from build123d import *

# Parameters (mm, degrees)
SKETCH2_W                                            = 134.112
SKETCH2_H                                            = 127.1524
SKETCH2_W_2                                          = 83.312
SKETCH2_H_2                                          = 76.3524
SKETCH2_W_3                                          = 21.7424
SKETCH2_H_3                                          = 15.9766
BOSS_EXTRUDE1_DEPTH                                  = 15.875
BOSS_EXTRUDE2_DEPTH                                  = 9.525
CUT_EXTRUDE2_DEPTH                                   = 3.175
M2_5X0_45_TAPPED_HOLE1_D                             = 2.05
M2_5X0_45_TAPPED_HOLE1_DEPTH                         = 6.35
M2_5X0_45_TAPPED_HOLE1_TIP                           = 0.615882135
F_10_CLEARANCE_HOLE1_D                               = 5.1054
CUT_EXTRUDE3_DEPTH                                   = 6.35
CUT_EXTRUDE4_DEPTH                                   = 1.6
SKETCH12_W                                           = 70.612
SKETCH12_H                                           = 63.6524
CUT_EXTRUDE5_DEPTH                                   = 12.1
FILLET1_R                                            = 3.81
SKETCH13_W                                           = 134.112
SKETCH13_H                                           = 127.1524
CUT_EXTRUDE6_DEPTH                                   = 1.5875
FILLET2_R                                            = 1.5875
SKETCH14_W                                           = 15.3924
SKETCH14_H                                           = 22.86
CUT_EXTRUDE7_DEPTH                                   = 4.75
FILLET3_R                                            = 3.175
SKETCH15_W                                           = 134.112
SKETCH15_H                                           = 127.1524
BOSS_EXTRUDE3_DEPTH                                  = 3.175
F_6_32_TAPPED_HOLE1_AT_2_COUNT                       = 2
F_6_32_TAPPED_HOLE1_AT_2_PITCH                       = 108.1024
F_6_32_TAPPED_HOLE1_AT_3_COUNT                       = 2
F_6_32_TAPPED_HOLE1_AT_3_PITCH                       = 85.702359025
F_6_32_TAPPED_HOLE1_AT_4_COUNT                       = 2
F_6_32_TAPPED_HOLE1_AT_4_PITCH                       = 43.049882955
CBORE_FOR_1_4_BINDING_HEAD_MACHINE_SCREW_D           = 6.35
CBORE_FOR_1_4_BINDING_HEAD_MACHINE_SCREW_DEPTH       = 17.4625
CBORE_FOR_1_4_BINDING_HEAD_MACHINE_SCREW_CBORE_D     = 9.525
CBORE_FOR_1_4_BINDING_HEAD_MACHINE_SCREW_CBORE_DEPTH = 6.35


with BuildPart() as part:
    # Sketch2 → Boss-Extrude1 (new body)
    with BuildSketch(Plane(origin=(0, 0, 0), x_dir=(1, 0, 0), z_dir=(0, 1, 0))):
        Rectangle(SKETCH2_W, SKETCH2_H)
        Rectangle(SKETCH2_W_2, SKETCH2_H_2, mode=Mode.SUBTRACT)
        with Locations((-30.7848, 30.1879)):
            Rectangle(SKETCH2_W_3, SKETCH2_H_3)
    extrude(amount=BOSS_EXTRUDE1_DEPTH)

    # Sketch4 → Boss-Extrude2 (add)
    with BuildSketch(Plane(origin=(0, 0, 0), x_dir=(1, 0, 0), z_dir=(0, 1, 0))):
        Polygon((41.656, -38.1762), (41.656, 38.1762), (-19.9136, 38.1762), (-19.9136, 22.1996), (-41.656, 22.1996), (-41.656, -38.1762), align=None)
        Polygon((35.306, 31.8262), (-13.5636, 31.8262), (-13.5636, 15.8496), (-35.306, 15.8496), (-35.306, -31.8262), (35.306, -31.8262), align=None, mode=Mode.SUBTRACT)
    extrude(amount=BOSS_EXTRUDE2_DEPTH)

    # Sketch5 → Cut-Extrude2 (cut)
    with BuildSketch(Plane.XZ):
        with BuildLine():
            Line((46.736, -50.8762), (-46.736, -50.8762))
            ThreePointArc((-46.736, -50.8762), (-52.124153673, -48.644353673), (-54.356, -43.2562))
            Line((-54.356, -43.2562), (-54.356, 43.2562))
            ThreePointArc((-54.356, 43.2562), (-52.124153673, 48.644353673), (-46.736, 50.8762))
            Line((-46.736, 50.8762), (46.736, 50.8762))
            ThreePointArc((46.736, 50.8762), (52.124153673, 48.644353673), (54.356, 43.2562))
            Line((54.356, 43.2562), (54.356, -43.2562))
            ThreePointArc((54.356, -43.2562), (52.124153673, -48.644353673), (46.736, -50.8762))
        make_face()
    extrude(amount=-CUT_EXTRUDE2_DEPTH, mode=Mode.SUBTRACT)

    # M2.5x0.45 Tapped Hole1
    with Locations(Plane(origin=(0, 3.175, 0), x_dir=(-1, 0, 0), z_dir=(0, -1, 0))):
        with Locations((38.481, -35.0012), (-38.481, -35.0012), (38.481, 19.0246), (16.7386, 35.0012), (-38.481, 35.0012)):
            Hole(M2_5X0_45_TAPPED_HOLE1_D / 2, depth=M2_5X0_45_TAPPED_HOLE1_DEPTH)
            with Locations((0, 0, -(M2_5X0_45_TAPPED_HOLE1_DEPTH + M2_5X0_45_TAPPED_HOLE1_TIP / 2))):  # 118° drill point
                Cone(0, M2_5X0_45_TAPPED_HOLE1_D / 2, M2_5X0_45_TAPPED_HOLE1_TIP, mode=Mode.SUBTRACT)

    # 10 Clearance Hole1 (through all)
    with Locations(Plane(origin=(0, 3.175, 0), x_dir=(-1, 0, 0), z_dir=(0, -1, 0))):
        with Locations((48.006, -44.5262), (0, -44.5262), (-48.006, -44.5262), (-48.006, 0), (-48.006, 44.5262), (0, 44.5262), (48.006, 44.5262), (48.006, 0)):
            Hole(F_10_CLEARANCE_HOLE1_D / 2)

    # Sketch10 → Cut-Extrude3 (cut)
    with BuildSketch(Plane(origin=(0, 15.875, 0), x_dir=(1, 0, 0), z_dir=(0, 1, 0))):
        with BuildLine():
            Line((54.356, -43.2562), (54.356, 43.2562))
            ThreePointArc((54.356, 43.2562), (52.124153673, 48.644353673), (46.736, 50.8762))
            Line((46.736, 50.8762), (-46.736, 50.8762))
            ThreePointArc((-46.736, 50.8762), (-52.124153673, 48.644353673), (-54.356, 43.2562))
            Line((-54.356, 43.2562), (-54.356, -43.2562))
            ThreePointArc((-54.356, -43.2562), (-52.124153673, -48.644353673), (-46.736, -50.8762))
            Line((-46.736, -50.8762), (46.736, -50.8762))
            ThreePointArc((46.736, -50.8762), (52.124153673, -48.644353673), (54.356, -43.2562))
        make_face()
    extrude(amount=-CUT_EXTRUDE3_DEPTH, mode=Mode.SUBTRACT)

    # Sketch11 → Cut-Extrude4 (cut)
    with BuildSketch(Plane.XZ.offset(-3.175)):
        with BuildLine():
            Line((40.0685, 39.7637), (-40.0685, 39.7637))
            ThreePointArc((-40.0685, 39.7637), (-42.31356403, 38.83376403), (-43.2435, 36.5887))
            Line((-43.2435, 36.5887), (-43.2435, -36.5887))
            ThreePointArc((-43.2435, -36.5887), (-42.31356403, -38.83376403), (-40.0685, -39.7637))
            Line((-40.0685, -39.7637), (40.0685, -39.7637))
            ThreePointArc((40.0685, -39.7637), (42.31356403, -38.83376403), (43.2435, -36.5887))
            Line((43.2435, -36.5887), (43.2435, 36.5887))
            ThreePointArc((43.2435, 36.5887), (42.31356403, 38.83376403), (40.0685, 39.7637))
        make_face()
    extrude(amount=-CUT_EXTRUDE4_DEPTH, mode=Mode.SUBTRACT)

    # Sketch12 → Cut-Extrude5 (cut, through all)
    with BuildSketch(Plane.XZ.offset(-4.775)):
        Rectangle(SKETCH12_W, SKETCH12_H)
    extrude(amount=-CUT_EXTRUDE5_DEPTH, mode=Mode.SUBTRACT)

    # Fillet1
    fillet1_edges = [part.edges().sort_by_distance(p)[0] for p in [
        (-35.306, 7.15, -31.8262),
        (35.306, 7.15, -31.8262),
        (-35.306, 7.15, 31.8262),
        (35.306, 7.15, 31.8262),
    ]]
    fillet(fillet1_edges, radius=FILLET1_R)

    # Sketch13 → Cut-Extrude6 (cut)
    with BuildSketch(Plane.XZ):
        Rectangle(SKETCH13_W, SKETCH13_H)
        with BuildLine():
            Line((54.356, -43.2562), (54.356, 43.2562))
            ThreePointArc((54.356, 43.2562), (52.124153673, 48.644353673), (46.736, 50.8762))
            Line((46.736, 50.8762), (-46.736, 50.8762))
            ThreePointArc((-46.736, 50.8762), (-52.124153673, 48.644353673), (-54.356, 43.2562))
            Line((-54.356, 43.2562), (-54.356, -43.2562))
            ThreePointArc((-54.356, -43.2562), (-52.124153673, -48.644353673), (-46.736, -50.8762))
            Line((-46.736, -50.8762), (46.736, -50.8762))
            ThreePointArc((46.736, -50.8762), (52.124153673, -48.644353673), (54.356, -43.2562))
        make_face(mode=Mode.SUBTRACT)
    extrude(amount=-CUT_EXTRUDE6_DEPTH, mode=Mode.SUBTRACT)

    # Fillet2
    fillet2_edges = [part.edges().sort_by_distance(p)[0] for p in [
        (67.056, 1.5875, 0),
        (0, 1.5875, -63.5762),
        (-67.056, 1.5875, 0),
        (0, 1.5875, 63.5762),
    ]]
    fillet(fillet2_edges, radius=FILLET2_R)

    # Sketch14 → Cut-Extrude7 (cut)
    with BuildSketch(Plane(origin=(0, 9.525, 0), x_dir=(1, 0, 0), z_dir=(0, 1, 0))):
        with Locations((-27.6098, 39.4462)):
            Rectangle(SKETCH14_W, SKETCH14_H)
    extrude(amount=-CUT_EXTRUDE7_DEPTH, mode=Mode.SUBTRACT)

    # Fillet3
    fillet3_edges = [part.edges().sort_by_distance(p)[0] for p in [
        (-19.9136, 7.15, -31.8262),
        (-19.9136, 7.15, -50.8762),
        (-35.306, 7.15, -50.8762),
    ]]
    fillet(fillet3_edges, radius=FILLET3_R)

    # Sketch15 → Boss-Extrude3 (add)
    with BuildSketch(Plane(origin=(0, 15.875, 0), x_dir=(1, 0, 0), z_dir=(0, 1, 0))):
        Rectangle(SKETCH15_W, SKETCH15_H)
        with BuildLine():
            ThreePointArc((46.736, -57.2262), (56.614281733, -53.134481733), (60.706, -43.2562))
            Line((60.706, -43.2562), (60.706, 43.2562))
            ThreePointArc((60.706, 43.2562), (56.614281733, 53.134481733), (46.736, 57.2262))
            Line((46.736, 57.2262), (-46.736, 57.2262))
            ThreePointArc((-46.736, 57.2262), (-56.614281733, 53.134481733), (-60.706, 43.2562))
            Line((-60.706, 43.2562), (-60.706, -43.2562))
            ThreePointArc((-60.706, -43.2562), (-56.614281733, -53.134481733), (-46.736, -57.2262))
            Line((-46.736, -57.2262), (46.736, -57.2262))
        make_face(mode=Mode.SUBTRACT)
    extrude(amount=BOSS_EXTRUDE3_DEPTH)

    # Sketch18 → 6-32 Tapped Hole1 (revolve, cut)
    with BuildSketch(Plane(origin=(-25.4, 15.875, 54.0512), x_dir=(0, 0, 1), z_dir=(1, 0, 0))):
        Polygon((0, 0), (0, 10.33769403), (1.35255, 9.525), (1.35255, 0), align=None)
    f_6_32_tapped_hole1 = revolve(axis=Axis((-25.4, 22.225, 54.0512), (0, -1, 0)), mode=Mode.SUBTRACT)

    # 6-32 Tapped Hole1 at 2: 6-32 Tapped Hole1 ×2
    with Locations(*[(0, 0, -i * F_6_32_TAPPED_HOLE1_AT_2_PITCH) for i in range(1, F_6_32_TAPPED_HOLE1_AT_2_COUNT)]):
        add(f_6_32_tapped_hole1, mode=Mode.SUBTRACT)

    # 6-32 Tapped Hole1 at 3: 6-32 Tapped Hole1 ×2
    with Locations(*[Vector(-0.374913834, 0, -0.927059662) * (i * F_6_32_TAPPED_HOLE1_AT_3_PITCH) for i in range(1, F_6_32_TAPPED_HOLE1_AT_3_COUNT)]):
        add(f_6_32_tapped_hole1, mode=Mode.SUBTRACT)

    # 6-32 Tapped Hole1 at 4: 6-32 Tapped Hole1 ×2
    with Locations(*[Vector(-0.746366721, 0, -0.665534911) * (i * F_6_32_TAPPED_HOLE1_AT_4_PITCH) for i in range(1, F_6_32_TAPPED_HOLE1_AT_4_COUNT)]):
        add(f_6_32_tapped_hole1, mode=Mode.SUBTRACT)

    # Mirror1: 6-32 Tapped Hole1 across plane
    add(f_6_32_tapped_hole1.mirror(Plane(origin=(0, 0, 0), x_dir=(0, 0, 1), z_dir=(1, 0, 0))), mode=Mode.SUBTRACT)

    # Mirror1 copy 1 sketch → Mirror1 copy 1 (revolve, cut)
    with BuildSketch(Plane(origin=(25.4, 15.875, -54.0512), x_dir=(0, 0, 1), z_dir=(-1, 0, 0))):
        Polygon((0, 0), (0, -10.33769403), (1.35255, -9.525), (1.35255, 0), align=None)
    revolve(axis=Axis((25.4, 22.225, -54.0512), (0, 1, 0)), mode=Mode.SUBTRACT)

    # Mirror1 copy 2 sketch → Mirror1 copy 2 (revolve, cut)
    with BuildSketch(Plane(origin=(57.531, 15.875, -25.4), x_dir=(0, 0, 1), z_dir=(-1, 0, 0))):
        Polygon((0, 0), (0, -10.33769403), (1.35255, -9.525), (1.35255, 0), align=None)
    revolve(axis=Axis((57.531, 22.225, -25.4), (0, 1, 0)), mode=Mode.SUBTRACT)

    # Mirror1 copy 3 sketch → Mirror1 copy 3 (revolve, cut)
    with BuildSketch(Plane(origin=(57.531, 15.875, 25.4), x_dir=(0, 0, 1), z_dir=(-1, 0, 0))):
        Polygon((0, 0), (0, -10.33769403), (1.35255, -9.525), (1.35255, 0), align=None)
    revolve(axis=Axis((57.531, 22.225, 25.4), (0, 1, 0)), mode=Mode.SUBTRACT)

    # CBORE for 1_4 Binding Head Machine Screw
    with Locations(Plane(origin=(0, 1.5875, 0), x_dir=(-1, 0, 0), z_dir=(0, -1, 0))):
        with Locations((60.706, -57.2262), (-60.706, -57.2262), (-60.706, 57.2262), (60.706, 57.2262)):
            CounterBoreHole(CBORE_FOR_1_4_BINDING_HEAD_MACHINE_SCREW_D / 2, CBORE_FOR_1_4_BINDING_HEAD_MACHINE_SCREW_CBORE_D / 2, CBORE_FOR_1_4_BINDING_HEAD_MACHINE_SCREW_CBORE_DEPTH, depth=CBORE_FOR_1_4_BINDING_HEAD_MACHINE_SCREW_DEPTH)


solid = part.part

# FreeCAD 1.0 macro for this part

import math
import FreeCAD as App
import Part
import Sketcher
from FreeCAD import Vector
Q = App.Units.Quantity


def edges_at(feature, points):
    """Names of the edges that pass closest to the given points."""
    edges = feature.Shape.Edges
    near = lambda p: min(range(len(edges)), key=lambda i: edges[i].distToShape(Part.Vertex(*p))[0])
    return sorted({f"Edge{near(p) + 1}" for p in points})


def add_polygon(sketch, points):
    """Adds a closed chain of lines whose ends are joined by coincident constraints."""
    first, n = sketch.GeometryCount, len(points)
    for a, b in zip(points, points[1:] + points[:1]):
        sketch.addGeometry(Part.LineSegment(App.Vector(*a, 0), App.Vector(*b, 0)), False)
    for i in range(n):
        sketch.addConstraint(Sketcher.Constraint("Coincident", first + i, 2, first + (i + 1) % n, 1))

doc = App.newDocument("Part")
body = doc.addObject("PartDesign::Body", "Body")

sketch1 = doc.addObject("Sketcher::SketchObject", "Sketch")
body.addObject(sketch1)
sketch1.AttachmentSupport = (doc.XZ_Plane, [""])
sketch1.MapMode = "FlatFace"
add_polygon(sketch1, [(-67, -64), (-67, 64), (67, 64), (67, -64)])
add_polygon(sketch1, [(42, 38), (-42, 38), (-42, -22), (-20, -22), (-20, -38), (42, -38)])
sketch1.addConstraint(Sketcher.Constraint("Vertical", 0))
sketch1.addConstraint(Sketcher.Constraint("Horizontal", 1))
sketch1.addConstraint(Sketcher.Constraint("Vertical", 2))
sketch1.addConstraint(Sketcher.Constraint("Horizontal", 3))
sketch1.addConstraint(Sketcher.Constraint("Horizontal", 4))
sketch1.addConstraint(Sketcher.Constraint("Vertical", 5))
sketch1.addConstraint(Sketcher.Constraint("Horizontal", 6))
sketch1.addConstraint(Sketcher.Constraint("Vertical", 7))
sketch1.addConstraint(Sketcher.Constraint("Horizontal", 8))
sketch1.addConstraint(Sketcher.Constraint("Vertical", 9))
sketch1.addConstraint(Sketcher.Constraint("Symmetric", 0, 2, 2, 2, -1, 1))
sketch1.addConstraint(Sketcher.Constraint("Symmetric", 4, 2, 8, 2, -1, 1))
sketch1.addConstraint(Sketcher.Constraint("DistanceX", 0, 2, 4, 2, Q("1 in")))
sketch1.addConstraint(Sketcher.Constraint("DistanceY", 4, 2, 0, 2, Q("1 in")))
sketch1.addConstraint(Sketcher.Constraint("DistanceX", 1, 1, 1, 2, Q("5.28 in")))
sketch1.addConstraint(Sketcher.Constraint("DistanceX", 6, 1, 6, 2, Q("0.856 in")))
sketch1.addConstraint(Sketcher.Constraint("DistanceY", 0, 1, 0, 2, Q("5.006 in")))
sketch1.addConstraint(Sketcher.Constraint("DistanceY", 5, 2, 5, 1, Q("2.377 in")))
pad1 = doc.addObject("PartDesign::Pad", "Pad")
body.addObject(pad1)
pad1.Profile = sketch1
pad1.Length = Q("0.625 in")
pad1.Reversed = True

sketch2 = doc.addObject("Sketcher::SketchObject", "Sketch001")
body.addObject(sketch2)
sketch2.AttachmentSupport = (doc.XZ_Plane, [""])
sketch2.MapMode = "FlatFace"
add_polygon(sketch2, [(42, 38), (42, -38), (-20, -38), (-20, -22), (-42, -22), (-42, 38)])
add_polygon(sketch2, [(-14, -32), (35, -32), (35, 32), (-35, 32), (-35, -16), (-14, -16)])
sketch2.addConstraint(Sketcher.Constraint("Vertical", 0))
sketch2.addConstraint(Sketcher.Constraint("Horizontal", 1))
sketch2.addConstraint(Sketcher.Constraint("Vertical", 2))
sketch2.addConstraint(Sketcher.Constraint("Horizontal", 3))
sketch2.addConstraint(Sketcher.Constraint("Vertical", 4))
sketch2.addConstraint(Sketcher.Constraint("Horizontal", 5))
sketch2.addConstraint(Sketcher.Constraint("Horizontal", 6))
sketch2.addConstraint(Sketcher.Constraint("Vertical", 7))
sketch2.addConstraint(Sketcher.Constraint("Horizontal", 8))
sketch2.addConstraint(Sketcher.Constraint("Vertical", 9))
sketch2.addConstraint(Sketcher.Constraint("Horizontal", 10))
sketch2.addConstraint(Sketcher.Constraint("Vertical", 11))
sketch2.addConstraint(Sketcher.Constraint("Symmetric", 0, 2, 4, 2, -1, 1))
sketch2.addConstraint(Sketcher.Constraint("Symmetric", 6, 2, 8, 2, -1, 1))
sketch2.addConstraint(Sketcher.Constraint("Equal", 3, 10))
sketch2.addConstraint(Sketcher.Constraint("Equal", 2, 11))
sketch2.addConstraint(Sketcher.Constraint("DistanceX", 5, 1, 5, 2, Q("3.28 in")))
sketch2.addConstraint(Sketcher.Constraint("DistanceX", 8, 2, 8, 1, Q("2.78 in")))
sketch2.addConstraint(Sketcher.Constraint("DistanceX", 1, 2, 1, 1, Q("2.424 in")))
sketch2.addConstraint(Sketcher.Constraint("DistanceY", 0, 2, 0, 1, Q("3.006 in")))
sketch2.addConstraint(Sketcher.Constraint("DistanceY", 2, 1, 2, 2, Q("0.629 in")))
sketch2.addConstraint(Sketcher.Constraint("DistanceY", 7, 1, 7, 2, Q("2.506 in")))
pad2 = doc.addObject("PartDesign::Pad", "Pad001")
body.addObject(pad2)
pad2.Profile = sketch2
pad2.Length = Q("0.375 in")
pad2.Reversed = True

sketch3 = doc.addObject("Sketcher::SketchObject", "Sketch002")
body.addObject(sketch3)
sketch3.AttachmentSupport = (doc.XZ_Plane, [""])
sketch3.MapMode = "FlatFace"
sketch3.addGeometry(Part.LineSegment(Vector(-47, -51, 0), Vector(47, -51, 0)), False)
sketch3.addGeometry(Part.ArcOfCircle(Part.Circle(Vector(47, -43, 0), Vector(0, 0, 1), 8), math.radians(-90), math.radians(0)), False)
sketch3.addGeometry(Part.LineSegment(Vector(54, -43, 0), Vector(54, 43, 0)), False)
sketch3.addGeometry(Part.ArcOfCircle(Part.Circle(Vector(47, 43, 0), Vector(0, 0, 1), 8), math.radians(0), math.radians(90)), False)
sketch3.addGeometry(Part.LineSegment(Vector(47, 51, 0), Vector(-47, 51, 0)), False)
sketch3.addGeometry(Part.ArcOfCircle(Part.Circle(Vector(-47, 43, 0), Vector(0, 0, 1), 8), math.radians(90), math.radians(180)), False)
sketch3.addGeometry(Part.LineSegment(Vector(-54, 43, 0), Vector(-54, -43, 0)), False)
sketch3.addGeometry(Part.ArcOfCircle(Part.Circle(Vector(-47, -43, 0), Vector(0, 0, 1), 8), math.radians(180), math.radians(270)), False)
sketch3.addConstraint(Sketcher.Constraint("Tangent", 0, 2, 1, 1))
sketch3.addConstraint(Sketcher.Constraint("Tangent", 1, 2, 2, 1))
sketch3.addConstraint(Sketcher.Constraint("Tangent", 2, 2, 3, 1))
sketch3.addConstraint(Sketcher.Constraint("Tangent", 3, 2, 4, 1))
sketch3.addConstraint(Sketcher.Constraint("Tangent", 4, 2, 5, 1))
sketch3.addConstraint(Sketcher.Constraint("Tangent", 5, 2, 6, 1))
sketch3.addConstraint(Sketcher.Constraint("Tangent", 6, 2, 7, 1))
sketch3.addConstraint(Sketcher.Constraint("Tangent", 7, 2, 0, 1))
sketch3.addConstraint(Sketcher.Constraint("Horizontal", 0))
sketch3.addConstraint(Sketcher.Constraint("Vertical", 2))
sketch3.addConstraint(Sketcher.Constraint("Horizontal", 4))
sketch3.addConstraint(Sketcher.Constraint("Vertical", 6))
sketch3.addConstraint(Sketcher.Constraint("Equal", 1, 3))
sketch3.addConstraint(Sketcher.Constraint("Equal", 3, 5))
sketch3.addConstraint(Sketcher.Constraint("Equal", 5, 7))
sketch3.addConstraint(Sketcher.Constraint("Symmetric", 1, 3, 5, 3, -1, 1))
sketch3.addConstraint(Sketcher.Constraint("Radius", 1, Q("0.3 in")))
sketch3.addConstraint(Sketcher.Constraint("DistanceX", 0, 1, 0, 2, Q("3.68 in")))
sketch3.addConstraint(Sketcher.Constraint("DistanceY", 2, 1, 2, 2, Q("3.406 in")))
pocket1 = doc.addObject("PartDesign::Pocket", "Pocket")
body.addObject(pocket1)
pocket1.Profile = sketch3
pocket1.Length = Q("0.125 in")

sketch4 = doc.addObject("Sketcher::SketchObject", "Sketch003")
body.addObject(sketch4)
sketch4.AttachmentSupport = (doc.XZ_Plane, [""])
sketch4.MapMode = "FlatFace"
sketch4.AttachmentOffset = App.Placement(Vector(0, 0, -0.125 * 25.4), App.Rotation())
sketch4.addGeometry(Part.Circle(Vector(-38.5, 35, 0), Vector(0, 0, 1), 1), False)
sketch4.addGeometry(Part.Circle(Vector(38.5, 35, 0), Vector(0, 0, 1), 1), False)
sketch4.addGeometry(Part.Circle(Vector(-38.5, -19, 0), Vector(0, 0, 1), 1), False)
sketch4.addGeometry(Part.Circle(Vector(-16.7, -35, 0), Vector(0, 0, 1), 1), False)
sketch4.addGeometry(Part.Circle(Vector(38.5, -35, 0), Vector(0, 0, 1), 1), False)
sketch4.addConstraint(Sketcher.Constraint("Equal", 0, 1))
sketch4.addConstraint(Sketcher.Constraint("Equal", 1, 2))
sketch4.addConstraint(Sketcher.Constraint("Equal", 2, 3))
sketch4.addConstraint(Sketcher.Constraint("Equal", 3, 4))
sketch4.addConstraint(Sketcher.Constraint("Symmetric", 0, 3, 4, 3, -1, 1))
sketch4.addConstraint(Sketcher.Constraint("Symmetric", 0, 3, 1, 3, -2))
sketch4.addConstraint(Sketcher.Constraint("Horizontal", 3, 3, 4, 3))
sketch4.addConstraint(Sketcher.Constraint("Vertical", 0, 3, 2, 3))
sketch4.addConstraint(Sketcher.Constraint("Diameter", 0, Q("2.05 mm")))
sketch4.addConstraint(Sketcher.Constraint("DistanceX", 0, 3, 1, 3, Q("3.03 in")))
sketch4.addConstraint(Sketcher.Constraint("DistanceY", -1, 1, 0, 3, Q("1.378 in")))
sketch4.addConstraint(Sketcher.Constraint("DistanceY", 2, 3, -1, 1, Q("0.749 in")))
sketch4.addConstraint(Sketcher.Constraint("DistanceX", 3, 3, -1, 1, Q("0.659 in")))
doc.recompute()
hole = doc.addObject("PartDesign::Hole", "Hole")
body.addObject(hole)
hole.Profile = sketch4
hole.ThreadType = "None"
hole.Diameter = 2.05
hole.DepthType = "Dimension"
hole.Depth = Q("0.25 in")
hole.DrillPoint = "Angled"
hole.DrillPointAngle = 118

sketch5 = doc.addObject("Sketcher::SketchObject", "Sketch004")
body.addObject(sketch5)
sketch5.AttachmentSupport = (doc.XZ_Plane, [""])
sketch5.MapMode = "FlatFace"
sketch5.AttachmentOffset = App.Placement(Vector(0, 0, -0.125 * 25.4), App.Rotation())
sketch5.addGeometry(Part.Circle(Vector(-48, 44.5, 0), Vector(0, 0, 1), 2.6), False)
sketch5.addGeometry(Part.Circle(Vector(0, 44.5, 0), Vector(0, 0, 1), 2.6), False)
sketch5.addGeometry(Part.Circle(Vector(48, 44.5, 0), Vector(0, 0, 1), 2.6), False)
sketch5.addGeometry(Part.Circle(Vector(48, 0, 0), Vector(0, 0, 1), 2.6), False)
sketch5.addGeometry(Part.Circle(Vector(48, -44.5, 0), Vector(0, 0, 1), 2.6), False)
sketch5.addGeometry(Part.Circle(Vector(0, -44.5, 0), Vector(0, 0, 1), 2.6), False)
sketch5.addGeometry(Part.Circle(Vector(-48, -44.5, 0), Vector(0, 0, 1), 2.6), False)
sketch5.addGeometry(Part.Circle(Vector(-48, 0, 0), Vector(0, 0, 1), 2.6), False)
sketch5.addConstraint(Sketcher.Constraint("Equal", 0, 1))
sketch5.addConstraint(Sketcher.Constraint("Equal", 1, 2))
sketch5.addConstraint(Sketcher.Constraint("Equal", 2, 3))
sketch5.addConstraint(Sketcher.Constraint("Equal", 3, 4))
sketch5.addConstraint(Sketcher.Constraint("Equal", 4, 5))
sketch5.addConstraint(Sketcher.Constraint("Equal", 5, 6))
sketch5.addConstraint(Sketcher.Constraint("Equal", 6, 7))
sketch5.addConstraint(Sketcher.Constraint("Symmetric", 0, 3, 4, 3, -1, 1))
sketch5.addConstraint(Sketcher.Constraint("Symmetric", 1, 3, 5, 3, -1, 1))
sketch5.addConstraint(Sketcher.Constraint("Symmetric", 2, 3, 6, 3, -1, 1))
sketch5.addConstraint(Sketcher.Constraint("Symmetric", 3, 3, 7, 3, -1, 1))
sketch5.addConstraint(Sketcher.Constraint("Symmetric", 0, 3, 2, 3, -2))
sketch5.addConstraint(Sketcher.Constraint("PointOnObject", 1, 3, -2))
sketch5.addConstraint(Sketcher.Constraint("PointOnObject", 3, 3, -1))
sketch5.addConstraint(Sketcher.Constraint("Horizontal", 0, 3, 1, 3))
sketch5.addConstraint(Sketcher.Constraint("Vertical", 2, 3, 3, 3))
sketch5.addConstraint(Sketcher.Constraint("Diameter", 0, Q("0.201 in")))
sketch5.addConstraint(Sketcher.Constraint("DistanceX", 0, 3, -1, 1, Q("1.89 in")))
sketch5.addConstraint(Sketcher.Constraint("DistanceY", -1, 1, 0, 3, Q("1.753 in")))
doc.recompute()
hole2 = doc.addObject("PartDesign::Hole", "Hole001")
body.addObject(hole2)
hole2.Profile = sketch5
hole2.ThreadType = "None"
hole2.Diameter = Q("0.201 in")
hole2.DepthType = "ThroughAll"

sketch6 = doc.addObject("Sketcher::SketchObject", "Sketch005")
body.addObject(sketch6)
sketch6.AttachmentSupport = (doc.XZ_Plane, [""])
sketch6.MapMode = "FlatFace"
sketch6.AttachmentOffset = App.Placement(Vector(0, 0, -0.625 * 25.4), App.Rotation())
sketch6.addGeometry(Part.LineSegment(Vector(54, 43, 0), Vector(54, -43, 0)), False)
sketch6.addGeometry(Part.ArcOfCircle(Part.Circle(Vector(47, -43, 0), Vector(0, 0, 1), 8), math.radians(-90), math.radians(0)), False)
sketch6.addGeometry(Part.LineSegment(Vector(47, -51, 0), Vector(-47, -51, 0)), False)
sketch6.addGeometry(Part.ArcOfCircle(Part.Circle(Vector(-47, -43, 0), Vector(0, 0, 1), 8), math.radians(180), math.radians(270)), False)
sketch6.addGeometry(Part.LineSegment(Vector(-54, -43, 0), Vector(-54, 43, 0)), False)
sketch6.addGeometry(Part.ArcOfCircle(Part.Circle(Vector(-47, 43, 0), Vector(0, 0, 1), 8), math.radians(90), math.radians(180)), False)
sketch6.addGeometry(Part.LineSegment(Vector(-47, 51, 0), Vector(47, 51, 0)), False)
sketch6.addGeometry(Part.ArcOfCircle(Part.Circle(Vector(47, 43, 0), Vector(0, 0, 1), 8), math.radians(0), math.radians(90)), False)
sketch6.addConstraint(Sketcher.Constraint("Tangent", 0, 2, 1, 2))
sketch6.addConstraint(Sketcher.Constraint("Tangent", 1, 1, 2, 1))
sketch6.addConstraint(Sketcher.Constraint("Tangent", 2, 2, 3, 2))
sketch6.addConstraint(Sketcher.Constraint("Tangent", 3, 1, 4, 1))
sketch6.addConstraint(Sketcher.Constraint("Tangent", 4, 2, 5, 2))
sketch6.addConstraint(Sketcher.Constraint("Tangent", 5, 1, 6, 1))
sketch6.addConstraint(Sketcher.Constraint("Tangent", 6, 2, 7, 2))
sketch6.addConstraint(Sketcher.Constraint("Tangent", 7, 1, 0, 1))
sketch6.addConstraint(Sketcher.Constraint("Vertical", 0))
sketch6.addConstraint(Sketcher.Constraint("Horizontal", 2))
sketch6.addConstraint(Sketcher.Constraint("Vertical", 4))
sketch6.addConstraint(Sketcher.Constraint("Horizontal", 6))
sketch6.addConstraint(Sketcher.Constraint("Equal", 1, 3))
sketch6.addConstraint(Sketcher.Constraint("Equal", 3, 5))
sketch6.addConstraint(Sketcher.Constraint("Equal", 5, 7))
sketch6.addConstraint(Sketcher.Constraint("Symmetric", 1, 3, 5, 3, -1, 1))
sketch6.addConstraint(Sketcher.Constraint("Radius", 1, Q("0.3 in")))
sketch6.addConstraint(Sketcher.Constraint("DistanceX", 2, 2, 2, 1, Q("3.68 in")))
sketch6.addConstraint(Sketcher.Constraint("DistanceY", 0, 2, 0, 1, Q("3.406 in")))
pocket2 = doc.addObject("PartDesign::Pocket", "Pocket001")
body.addObject(pocket2)
pocket2.Profile = sketch6
pocket2.Length = Q("0.25 in")
pocket2.Reversed = True

sketch7 = doc.addObject("Sketcher::SketchObject", "Sketch006")
body.addObject(sketch7)
sketch7.AttachmentSupport = (doc.XZ_Plane, [""])
sketch7.MapMode = "FlatFace"
sketch7.AttachmentOffset = App.Placement(Vector(0, 0, -0.125 * 25.4), App.Rotation())
sketch7.addGeometry(Part.LineSegment(Vector(40.1, 39.8, 0), Vector(-40.1, 39.8, 0)), False)
sketch7.addGeometry(Part.ArcOfCircle(Part.Circle(Vector(-40.1, 36.6, 0), Vector(0, 0, 1), 3.2), math.radians(90), math.radians(180)), False)
sketch7.addGeometry(Part.LineSegment(Vector(-43.2, 36.6, 0), Vector(-43.2, -36.6, 0)), False)
sketch7.addGeometry(Part.ArcOfCircle(Part.Circle(Vector(-40.1, -36.6, 0), Vector(0, 0, 1), 3.2), math.radians(-180), math.radians(-90)), False)
sketch7.addGeometry(Part.LineSegment(Vector(-40.1, -39.8, 0), Vector(40.1, -39.8, 0)), False)
sketch7.addGeometry(Part.ArcOfCircle(Part.Circle(Vector(40.1, -36.6, 0), Vector(0, 0, 1), 3.2), math.radians(-90), math.radians(0)), False)
sketch7.addGeometry(Part.LineSegment(Vector(43.2, -36.6, 0), Vector(43.2, 36.6, 0)), False)
sketch7.addGeometry(Part.ArcOfCircle(Part.Circle(Vector(40.1, 36.6, 0), Vector(0, 0, 1), 3.2), math.radians(0), math.radians(90)), False)
sketch7.addConstraint(Sketcher.Constraint("Tangent", 0, 2, 1, 1))
sketch7.addConstraint(Sketcher.Constraint("Tangent", 1, 2, 2, 1))
sketch7.addConstraint(Sketcher.Constraint("Tangent", 2, 2, 3, 1))
sketch7.addConstraint(Sketcher.Constraint("Tangent", 3, 2, 4, 1))
sketch7.addConstraint(Sketcher.Constraint("Tangent", 4, 2, 5, 1))
sketch7.addConstraint(Sketcher.Constraint("Tangent", 5, 2, 6, 1))
sketch7.addConstraint(Sketcher.Constraint("Tangent", 6, 2, 7, 1))
sketch7.addConstraint(Sketcher.Constraint("Tangent", 7, 2, 0, 1))
sketch7.addConstraint(Sketcher.Constraint("Horizontal", 0))
sketch7.addConstraint(Sketcher.Constraint("Vertical", 2))
sketch7.addConstraint(Sketcher.Constraint("Horizontal", 4))
sketch7.addConstraint(Sketcher.Constraint("Vertical", 6))
sketch7.addConstraint(Sketcher.Constraint("Equal", 1, 3))
sketch7.addConstraint(Sketcher.Constraint("Equal", 3, 5))
sketch7.addConstraint(Sketcher.Constraint("Equal", 5, 7))
sketch7.addConstraint(Sketcher.Constraint("Symmetric", 1, 3, 5, 3, -1, 1))
sketch7.addConstraint(Sketcher.Constraint("Radius", 1, Q("0.125 in")))
sketch7.addConstraint(Sketcher.Constraint("DistanceX", 0, 2, 0, 1, Q("3.155 in")))
sketch7.addConstraint(Sketcher.Constraint("DistanceY", 2, 2, 2, 1, Q("2.881 in")))
pocket3 = doc.addObject("PartDesign::Pocket", "Pocket002")
body.addObject(pocket3)
pocket3.Profile = sketch7
pocket3.Length = 1.6

sketch8 = doc.addObject("Sketcher::SketchObject", "Sketch007")
body.addObject(sketch8)
sketch8.AttachmentSupport = (doc.XZ_Plane, [""])
sketch8.MapMode = "FlatFace"
sketch8.AttachmentOffset = App.Placement(Vector(0, 0, -4.775), App.Rotation())
add_polygon(sketch8, [(-35, 32), (-35, -32), (35, -32), (35, 32)])
sketch8.addConstraint(Sketcher.Constraint("Vertical", 0))
sketch8.addConstraint(Sketcher.Constraint("Horizontal", 1))
sketch8.addConstraint(Sketcher.Constraint("Vertical", 2))
sketch8.addConstraint(Sketcher.Constraint("Horizontal", 3))
sketch8.addConstraint(Sketcher.Constraint("Symmetric", 0, 2, 2, 2, -1, 1))
sketch8.addConstraint(Sketcher.Constraint("DistanceX", 1, 1, 1, 2, Q("2.78 in")))
sketch8.addConstraint(Sketcher.Constraint("DistanceY", 0, 2, 0, 1, Q("2.506 in")))
pocket4 = doc.addObject("PartDesign::Pocket", "Pocket003")
body.addObject(pocket4)
pocket4.Profile = sketch8
pocket4.Type = "ThroughAll"
doc.recompute()

fillet = doc.addObject("PartDesign::Fillet", "Fillet")
body.addObject(fillet)
fillet.Base = (pocket4, edges_at(pocket4, [
    (-35.306, 7.15, -31.826),
    (35.306, 7.15, -31.826),
    (-35.306, 7.15, 31.826),
    (35.306, 7.15, 31.826),
]))
fillet.Radius = Q("0.15 in")

sketch9 = doc.addObject("Sketcher::SketchObject", "Sketch008")
body.addObject(sketch9)
sketch9.AttachmentSupport = (doc.XZ_Plane, [""])
sketch9.MapMode = "FlatFace"
add_polygon(sketch9, [(-67, 64), (-67, -64), (67, -64), (67, 64)])
sketch9.addGeometry(Part.LineSegment(Vector(54, 43, 0), Vector(54, -43, 0)), False)
sketch9.addGeometry(Part.ArcOfCircle(Part.Circle(Vector(47, -43, 0), Vector(0, 0, 1), 8), math.radians(-90), math.radians(0)), False)
sketch9.addGeometry(Part.LineSegment(Vector(47, -51, 0), Vector(-47, -51, 0)), False)
sketch9.addGeometry(Part.ArcOfCircle(Part.Circle(Vector(-47, -43, 0), Vector(0, 0, 1), 8), math.radians(180), math.radians(270)), False)
sketch9.addGeometry(Part.LineSegment(Vector(-54, -43, 0), Vector(-54, 43, 0)), False)
sketch9.addGeometry(Part.ArcOfCircle(Part.Circle(Vector(-47, 43, 0), Vector(0, 0, 1), 8), math.radians(90), math.radians(180)), False)
sketch9.addGeometry(Part.LineSegment(Vector(-47, 51, 0), Vector(47, 51, 0)), False)
sketch9.addGeometry(Part.ArcOfCircle(Part.Circle(Vector(47, 43, 0), Vector(0, 0, 1), 8), math.radians(0), math.radians(90)), False)
sketch9.addConstraint(Sketcher.Constraint("Tangent", 4, 2, 5, 2))
sketch9.addConstraint(Sketcher.Constraint("Tangent", 5, 1, 6, 1))
sketch9.addConstraint(Sketcher.Constraint("Tangent", 6, 2, 7, 2))
sketch9.addConstraint(Sketcher.Constraint("Tangent", 7, 1, 8, 1))
sketch9.addConstraint(Sketcher.Constraint("Tangent", 8, 2, 9, 2))
sketch9.addConstraint(Sketcher.Constraint("Tangent", 9, 1, 10, 1))
sketch9.addConstraint(Sketcher.Constraint("Tangent", 10, 2, 11, 2))
sketch9.addConstraint(Sketcher.Constraint("Tangent", 11, 1, 4, 1))
sketch9.addConstraint(Sketcher.Constraint("Vertical", 0))
sketch9.addConstraint(Sketcher.Constraint("Horizontal", 1))
sketch9.addConstraint(Sketcher.Constraint("Vertical", 2))
sketch9.addConstraint(Sketcher.Constraint("Horizontal", 3))
sketch9.addConstraint(Sketcher.Constraint("Vertical", 4))
sketch9.addConstraint(Sketcher.Constraint("Horizontal", 6))
sketch9.addConstraint(Sketcher.Constraint("Vertical", 8))
sketch9.addConstraint(Sketcher.Constraint("Horizontal", 10))
sketch9.addConstraint(Sketcher.Constraint("Equal", 5, 7))
sketch9.addConstraint(Sketcher.Constraint("Equal", 7, 9))
sketch9.addConstraint(Sketcher.Constraint("Equal", 9, 11))
sketch9.addConstraint(Sketcher.Constraint("Symmetric", 5, 3, 9, 3, -1, 1))
sketch9.addConstraint(Sketcher.Constraint("Symmetric", 0, 2, 2, 2, -1, 1))
sketch9.addConstraint(Sketcher.Constraint("Radius", 5, Q("0.3 in")))
sketch9.addConstraint(Sketcher.Constraint("DistanceX", 1, 1, 1, 2, Q("5.28 in")))
sketch9.addConstraint(Sketcher.Constraint("DistanceX", 6, 2, 6, 1, Q("3.68 in")))
sketch9.addConstraint(Sketcher.Constraint("DistanceY", 0, 2, 7, 3, Q("0.8 in")))
sketch9.addConstraint(Sketcher.Constraint("DistanceY", 0, 2, 0, 1, Q("5.006 in")))
pocket5 = doc.addObject("PartDesign::Pocket", "Pocket004")
body.addObject(pocket5)
pocket5.Profile = sketch9
pocket5.Length = Q("0.0625 in")
doc.recompute()

fillet2 = doc.addObject("PartDesign::Fillet", "Fillet001")
body.addObject(fillet2)
fillet2.Base = (pocket5, edges_at(pocket5, [
    (67.056, 1.587, 0),
    (0, 1.587, -63.576),
    (-67.056, 1.587, 0),
    (0, 1.587, 63.576),
]))
fillet2.Radius = Q("0.0625 in")

sketch10 = doc.addObject("Sketcher::SketchObject", "Sketch009")
body.addObject(sketch10)
sketch10.AttachmentSupport = (doc.XZ_Plane, [""])
sketch10.MapMode = "FlatFace"
sketch10.AttachmentOffset = App.Placement(Vector(0, 0, -0.375 * 25.4), App.Rotation())
add_polygon(sketch10, [(-35, -51), (-35, -28), (-20, -28), (-20, -51)])
sketch10.addConstraint(Sketcher.Constraint("Vertical", 0))
sketch10.addConstraint(Sketcher.Constraint("Horizontal", 1))
sketch10.addConstraint(Sketcher.Constraint("Vertical", 2))
sketch10.addConstraint(Sketcher.Constraint("Horizontal", 3))
sketch10.addConstraint(Sketcher.Constraint("DistanceY", 0, 1, 0, 2, Q("0.9 in")))
sketch10.addConstraint(Sketcher.Constraint("DistanceX", 1, 1, 1, 2, Q("0.606 in")))
sketch10.addConstraint(Sketcher.Constraint("DistanceX", 0, 2, -1, 1, Q("1.39 in")))
sketch10.addConstraint(Sketcher.Constraint("DistanceY", 0, 2, -1, 1, Q("1.103 in")))
pocket6 = doc.addObject("PartDesign::Pocket", "Pocket005")
body.addObject(pocket6)
pocket6.Profile = sketch10
pocket6.Length = 4.75
pocket6.Reversed = True
doc.recompute()

fillet3 = doc.addObject("PartDesign::Fillet", "Fillet002")
body.addObject(fillet3)
fillet3.Base = (pocket6, edges_at(pocket6, [(-19.914, 7.15, -31.826), (-19.914, 7.15, -50.876), (-35.306, 7.15, -50.876)]))
fillet3.Radius = Q("0.125 in")

sketch11 = doc.addObject("Sketcher::SketchObject", "Sketch010")
body.addObject(sketch11)
sketch11.AttachmentSupport = (doc.XZ_Plane, [""])
sketch11.MapMode = "FlatFace"
sketch11.AttachmentOffset = App.Placement(Vector(0, 0, -0.625 * 25.4), App.Rotation())
add_polygon(sketch11, [(-67, -64), (-67, 64), (67, 64), (67, -64)])
sketch11.addGeometry(Part.ArcOfCircle(Part.Circle(Vector(47, 43, 0), Vector(0, 0, 1), 14), math.radians(0), math.radians(90)), False)
sketch11.addGeometry(Part.LineSegment(Vector(47, 57, 0), Vector(-47, 57, 0)), False)
sketch11.addGeometry(Part.ArcOfCircle(Part.Circle(Vector(-47, 43, 0), Vector(0, 0, 1), 14), math.radians(90), math.radians(180)), False)
sketch11.addGeometry(Part.LineSegment(Vector(-61, 43, 0), Vector(-61, -43, 0)), False)
sketch11.addGeometry(Part.ArcOfCircle(Part.Circle(Vector(-47, -43, 0), Vector(0, 0, 1), 14), math.radians(-180), math.radians(-90)), False)
sketch11.addGeometry(Part.LineSegment(Vector(-47, -57, 0), Vector(47, -57, 0)), False)
sketch11.addGeometry(Part.ArcOfCircle(Part.Circle(Vector(47, -43, 0), Vector(0, 0, 1), 14), math.radians(-90), math.radians(0)), False)
sketch11.addGeometry(Part.LineSegment(Vector(61, -43, 0), Vector(61, 43, 0)), False)
sketch11.addConstraint(Sketcher.Constraint("Tangent", 4, 2, 5, 1))
sketch11.addConstraint(Sketcher.Constraint("Tangent", 5, 2, 6, 1))
sketch11.addConstraint(Sketcher.Constraint("Tangent", 6, 2, 7, 1))
sketch11.addConstraint(Sketcher.Constraint("Tangent", 7, 2, 8, 1))
sketch11.addConstraint(Sketcher.Constraint("Tangent", 8, 2, 9, 1))
sketch11.addConstraint(Sketcher.Constraint("Tangent", 9, 2, 10, 1))
sketch11.addConstraint(Sketcher.Constraint("Tangent", 10, 2, 11, 1))
sketch11.addConstraint(Sketcher.Constraint("Tangent", 11, 2, 4, 1))
sketch11.addConstraint(Sketcher.Constraint("Vertical", 0))
sketch11.addConstraint(Sketcher.Constraint("Horizontal", 1))
sketch11.addConstraint(Sketcher.Constraint("Vertical", 2))
sketch11.addConstraint(Sketcher.Constraint("Horizontal", 3))
sketch11.addConstraint(Sketcher.Constraint("Horizontal", 5))
sketch11.addConstraint(Sketcher.Constraint("Vertical", 7))
sketch11.addConstraint(Sketcher.Constraint("Horizontal", 9))
sketch11.addConstraint(Sketcher.Constraint("Vertical", 11))
sketch11.addConstraint(Sketcher.Constraint("Equal", 4, 6))
sketch11.addConstraint(Sketcher.Constraint("Equal", 6, 8))
sketch11.addConstraint(Sketcher.Constraint("Equal", 8, 10))
sketch11.addConstraint(Sketcher.Constraint("Symmetric", 4, 3, 8, 3, -1, 1))
sketch11.addConstraint(Sketcher.Constraint("Symmetric", 0, 2, 2, 2, -1, 1))
sketch11.addConstraint(Sketcher.Constraint("Radius", 4, Q("0.55 in")))
sketch11.addConstraint(Sketcher.Constraint("DistanceX", 1, 1, 1, 2, Q("5.28 in")))
sketch11.addConstraint(Sketcher.Constraint("DistanceX", 5, 2, 5, 1, Q("3.68 in")))
sketch11.addConstraint(Sketcher.Constraint("DistanceY", 6, 3, 0, 2, Q("0.8 in")))
sketch11.addConstraint(Sketcher.Constraint("DistanceY", 0, 1, 0, 2, Q("5.006 in")))
pad3 = doc.addObject("PartDesign::Pad", "Pad002")
body.addObject(pad3)
pad3.Profile = sketch11
pad3.Length = Q("0.125 in")
pad3.Reversed = True

sketch12 = doc.addObject("Sketcher::SketchObject", "Sketch011")
body.addObject(sketch12)
sketch12.AttachmentSupport = (doc.YZ_Plane, [""])
sketch12.MapMode = "FlatFace"
sketch12.AttachmentOffset = App.Placement(Vector(0, 0, -1 * 25.4), App.Rotation())
add_polygon(sketch12, [(5.5, 54.1), (15.9, 54.1), (15.9, 55.4), (6.3, 55.4)])
sketch12.addGeometry(Part.LineSegment(Vector(15.9, 54.1, 0), Vector(5.5, 54.1, 0)), True)
sketch12.addConstraint(Sketcher.Constraint("Horizontal", 0))
sketch12.addConstraint(Sketcher.Constraint("Vertical", 1))
sketch12.addConstraint(Sketcher.Constraint("Horizontal", 2))
sketch12.addConstraint(Sketcher.Constraint("Horizontal", 4))
sketch12.addConstraint(Sketcher.Constraint("Coincident", 4, 1, 0, 2))
sketch12.addConstraint(Sketcher.Constraint("Equal", 0, 4))
sketch12.addConstraint(Sketcher.Constraint("Angle", 3, Q("-121 deg")))
sketch12.addConstraint(Sketcher.Constraint("DistanceX", 2, 2, 2, 1, Q("0.375 in")))
sketch12.addConstraint(Sketcher.Constraint("DistanceX", -1, 1, 2, 2, Q("0.25 in")))
sketch12.addConstraint(Sketcher.Constraint("DistanceY", -1, 1, 0, 2, Q("2.128 in")))
sketch12.addConstraint(Sketcher.Constraint("DistanceY", 1, 1, 1, 2, Q("1.35255 mm")))
groove = doc.addObject("PartDesign::Groove", "Groove")
body.addObject(groove)
groove.Profile = sketch12
groove.ReferenceAxis = (sketch12, ["Axis0"])
groove.Angle = 360
doc.recompute()

linearpattern = doc.addObject("PartDesign::LinearPattern", "LinearPattern")
body.addObject(linearpattern)
linearpattern.Originals = [groove]
linearpattern.Direction = (doc.Z_Axis, [""])
linearpattern.Mode = "offset"
linearpattern.Offset = Q("4.256 in")
linearpattern.Occurrences = 2
linearpattern.Reversed = True
body.Tip = linearpattern
doc.recompute()

datumline = doc.addObject("PartDesign::Line", "DatumLine")
body.addObject(datumline)
datumline.Placement = App.Placement(Vector(0, 0, 0), App.Rotation(Vector(0, 0, 1), Vector(-0.374913834, 0, -0.927059662)))
linearpattern2 = doc.addObject("PartDesign::LinearPattern", "LinearPattern001")
body.addObject(linearpattern2)
linearpattern2.Originals = [groove]
linearpattern2.Direction = (datumline, [""])
linearpattern2.Mode = "offset"
linearpattern2.Offset = 85.702359
linearpattern2.Occurrences = 2
body.Tip = linearpattern2
doc.recompute()

datumline2 = doc.addObject("PartDesign::Line", "DatumLine001")
body.addObject(datumline2)
datumline2.Placement = App.Placement(Vector(0, 0, 0), App.Rotation(Vector(0, 0, 1), Vector(-0.746366721, 0, -0.665534911)))
linearpattern3 = doc.addObject("PartDesign::LinearPattern", "LinearPattern002")
body.addObject(linearpattern3)
linearpattern3.Originals = [groove]
linearpattern3.Direction = (datumline2, [""])
linearpattern3.Mode = "offset"
linearpattern3.Offset = 43.049883
linearpattern3.Occurrences = 2
body.Tip = linearpattern3
doc.recompute()

mirrored = doc.addObject("PartDesign::Mirrored", "Mirrored")
body.addObject(mirrored)
mirrored.Originals = [groove]
mirrored.MirrorPlane = (doc.YZ_Plane, [""])
body.Tip = mirrored

sketch13 = doc.addObject("Sketcher::SketchObject", "Sketch012")
body.addObject(sketch13)
sketch13.AttachmentSupport = (doc.YZ_Plane, [""])
sketch13.MapMode = "FlatFace"
sketch13.AttachmentOffset = App.Placement(Vector(0, 0, 1 * 25.4), App.Rotation())
add_polygon(sketch13, [(15.9, -54.1), (5.5, -54.1), (6.3, -52.7), (15.9, -52.7)])
sketch13.addGeometry(Part.LineSegment(Vector(5.5, -54.1, 0), Vector(15.9, -54.1, 0)), True)
sketch13.addConstraint(Sketcher.Constraint("Horizontal", 0))
sketch13.addConstraint(Sketcher.Constraint("Horizontal", 2))
sketch13.addConstraint(Sketcher.Constraint("Vertical", 3))
sketch13.addConstraint(Sketcher.Constraint("Horizontal", 4))
sketch13.addConstraint(Sketcher.Constraint("Coincident", 4, 1, 0, 2))
sketch13.addConstraint(Sketcher.Constraint("Vertical", 2, 2, 4, 2))
sketch13.addConstraint(Sketcher.Constraint("Angle", 1, Q("59 deg")))
sketch13.addConstraint(Sketcher.Constraint("DistanceX", 2, 1, 2, 2, Q("0.375 in")))
sketch13.addConstraint(Sketcher.Constraint("DistanceX", -1, 1, 1, 2, Q("0.25 in")))
sketch13.addConstraint(Sketcher.Constraint("DistanceY", 0, 2, -1, 1, Q("2.128 in")))
sketch13.addConstraint(Sketcher.Constraint("DistanceY", 3, 2, 3, 1, Q("1.35255 mm")))
groove2 = doc.addObject("PartDesign::Groove", "Groove001")
body.addObject(groove2)
groove2.Profile = sketch13
groove2.ReferenceAxis = (sketch13, ["Axis0"])
groove2.Angle = 360

sketch14 = doc.addObject("Sketcher::SketchObject", "Sketch013")
body.addObject(sketch14)
sketch14.AttachmentSupport = (doc.YZ_Plane, [""])
sketch14.MapMode = "FlatFace"
sketch14.AttachmentOffset = App.Placement(Vector(0, 0, 2.265 * 25.4), App.Rotation())
add_polygon(sketch14, [(15.9, -25.4), (5.5, -25.4), (6.3, -24), (15.9, -24)])
sketch14.addGeometry(Part.LineSegment(Vector(5.5, -25.4, 0), Vector(15.9, -25.4, 0)), True)
sketch14.addConstraint(Sketcher.Constraint("Horizontal", 0))
sketch14.addConstraint(Sketcher.Constraint("Horizontal", 2))
sketch14.addConstraint(Sketcher.Constraint("Vertical", 3))
sketch14.addConstraint(Sketcher.Constraint("Horizontal", 4))
sketch14.addConstraint(Sketcher.Constraint("Coincident", 4, 1, 0, 2))
sketch14.addConstraint(Sketcher.Constraint("Vertical", 2, 2, 4, 2))
sketch14.addConstraint(Sketcher.Constraint("DistanceY", 0, 2, -1, 1, Q("1 in")))
sketch14.addConstraint(Sketcher.Constraint("Angle", 1, Q("59 deg")))
sketch14.addConstraint(Sketcher.Constraint("DistanceX", 2, 1, 2, 2, Q("0.375 in")))
sketch14.addConstraint(Sketcher.Constraint("DistanceX", -1, 1, 1, 2, Q("0.25 in")))
sketch14.addConstraint(Sketcher.Constraint("DistanceY", 3, 2, 3, 1, Q("1.35255 mm")))
groove3 = doc.addObject("PartDesign::Groove", "Groove002")
body.addObject(groove3)
groove3.Profile = sketch14
groove3.ReferenceAxis = (sketch14, ["Axis0"])
groove3.Angle = 360

sketch15 = doc.addObject("Sketcher::SketchObject", "Sketch014")
body.addObject(sketch15)
sketch15.AttachmentSupport = (doc.YZ_Plane, [""])
sketch15.MapMode = "FlatFace"
sketch15.AttachmentOffset = App.Placement(Vector(0, 0, 2.265 * 25.4), App.Rotation())
add_polygon(sketch15, [(15.9, 25.4), (5.5, 25.4), (6.3, 26.8), (15.9, 26.8)])
sketch15.addGeometry(Part.LineSegment(Vector(5.5, 25.4, 0), Vector(15.9, 25.4, 0)), True)
sketch15.addConstraint(Sketcher.Constraint("Horizontal", 0))
sketch15.addConstraint(Sketcher.Constraint("Horizontal", 2))
sketch15.addConstraint(Sketcher.Constraint("Vertical", 3))
sketch15.addConstraint(Sketcher.Constraint("Horizontal", 4))
sketch15.addConstraint(Sketcher.Constraint("Coincident", 4, 1, 0, 2))
sketch15.addConstraint(Sketcher.Constraint("Vertical", 2, 2, 4, 2))
sketch15.addConstraint(Sketcher.Constraint("DistanceY", -1, 1, 0, 2, Q("1 in")))
sketch15.addConstraint(Sketcher.Constraint("Angle", 1, Q("59 deg")))
sketch15.addConstraint(Sketcher.Constraint("DistanceX", 2, 1, 2, 2, Q("0.375 in")))
sketch15.addConstraint(Sketcher.Constraint("DistanceX", -1, 1, 1, 2, Q("0.25 in")))
sketch15.addConstraint(Sketcher.Constraint("DistanceY", 3, 2, 3, 1, Q("1.35255 mm")))
groove4 = doc.addObject("PartDesign::Groove", "Groove003")
body.addObject(groove4)
groove4.Profile = sketch15
groove4.ReferenceAxis = (sketch15, ["Axis0"])
groove4.Angle = 360

sketch16 = doc.addObject("Sketcher::SketchObject", "Sketch015")
body.addObject(sketch16)
sketch16.AttachmentSupport = (doc.XZ_Plane, [""])
sketch16.MapMode = "FlatFace"
sketch16.AttachmentOffset = App.Placement(Vector(0, 0, -0.0625 * 25.4), App.Rotation())
sketch16.addGeometry(Part.Circle(Vector(-60.7, 57.2, 0), Vector(0, 0, 1), 3.2), False)
sketch16.addGeometry(Part.Circle(Vector(60.7, 57.2, 0), Vector(0, 0, 1), 3.2), False)
sketch16.addGeometry(Part.Circle(Vector(60.7, -57.2, 0), Vector(0, 0, 1), 3.2), False)
sketch16.addGeometry(Part.Circle(Vector(-60.7, -57.2, 0), Vector(0, 0, 1), 3.2), False)
sketch16.addConstraint(Sketcher.Constraint("Equal", 0, 1))
sketch16.addConstraint(Sketcher.Constraint("Equal", 1, 2))
sketch16.addConstraint(Sketcher.Constraint("Equal", 2, 3))
sketch16.addConstraint(Sketcher.Constraint("Symmetric", 0, 3, 2, 3, -1, 1))
sketch16.addConstraint(Sketcher.Constraint("Symmetric", 1, 3, 3, 3, -1, 1))
sketch16.addConstraint(Sketcher.Constraint("Symmetric", 0, 3, 1, 3, -2))
sketch16.addConstraint(Sketcher.Constraint("Diameter", 0, Q("0.25 in")))
sketch16.addConstraint(Sketcher.Constraint("DistanceX", 0, 3, -1, 1, Q("2.39 in")))
sketch16.addConstraint(Sketcher.Constraint("DistanceY", -1, 1, 0, 3, Q("2.253 in")))
doc.recompute()
hole3 = doc.addObject("PartDesign::Hole", "Hole002")
body.addObject(hole3)
hole3.Profile = sketch16
hole3.ThreadType = "None"
hole3.Diameter = Q("0.25 in")
hole3.DepthType = "Dimension"
hole3.Depth = Q("0.6875 in")
hole3.DrillPoint = "Flat"
hole3.HoleCutType = "Counterbore"
hole3.HoleCutDiameter = Q("0.375 in")
hole3.HoleCutDepth = Q("0.25 in")

doc.recompute()
